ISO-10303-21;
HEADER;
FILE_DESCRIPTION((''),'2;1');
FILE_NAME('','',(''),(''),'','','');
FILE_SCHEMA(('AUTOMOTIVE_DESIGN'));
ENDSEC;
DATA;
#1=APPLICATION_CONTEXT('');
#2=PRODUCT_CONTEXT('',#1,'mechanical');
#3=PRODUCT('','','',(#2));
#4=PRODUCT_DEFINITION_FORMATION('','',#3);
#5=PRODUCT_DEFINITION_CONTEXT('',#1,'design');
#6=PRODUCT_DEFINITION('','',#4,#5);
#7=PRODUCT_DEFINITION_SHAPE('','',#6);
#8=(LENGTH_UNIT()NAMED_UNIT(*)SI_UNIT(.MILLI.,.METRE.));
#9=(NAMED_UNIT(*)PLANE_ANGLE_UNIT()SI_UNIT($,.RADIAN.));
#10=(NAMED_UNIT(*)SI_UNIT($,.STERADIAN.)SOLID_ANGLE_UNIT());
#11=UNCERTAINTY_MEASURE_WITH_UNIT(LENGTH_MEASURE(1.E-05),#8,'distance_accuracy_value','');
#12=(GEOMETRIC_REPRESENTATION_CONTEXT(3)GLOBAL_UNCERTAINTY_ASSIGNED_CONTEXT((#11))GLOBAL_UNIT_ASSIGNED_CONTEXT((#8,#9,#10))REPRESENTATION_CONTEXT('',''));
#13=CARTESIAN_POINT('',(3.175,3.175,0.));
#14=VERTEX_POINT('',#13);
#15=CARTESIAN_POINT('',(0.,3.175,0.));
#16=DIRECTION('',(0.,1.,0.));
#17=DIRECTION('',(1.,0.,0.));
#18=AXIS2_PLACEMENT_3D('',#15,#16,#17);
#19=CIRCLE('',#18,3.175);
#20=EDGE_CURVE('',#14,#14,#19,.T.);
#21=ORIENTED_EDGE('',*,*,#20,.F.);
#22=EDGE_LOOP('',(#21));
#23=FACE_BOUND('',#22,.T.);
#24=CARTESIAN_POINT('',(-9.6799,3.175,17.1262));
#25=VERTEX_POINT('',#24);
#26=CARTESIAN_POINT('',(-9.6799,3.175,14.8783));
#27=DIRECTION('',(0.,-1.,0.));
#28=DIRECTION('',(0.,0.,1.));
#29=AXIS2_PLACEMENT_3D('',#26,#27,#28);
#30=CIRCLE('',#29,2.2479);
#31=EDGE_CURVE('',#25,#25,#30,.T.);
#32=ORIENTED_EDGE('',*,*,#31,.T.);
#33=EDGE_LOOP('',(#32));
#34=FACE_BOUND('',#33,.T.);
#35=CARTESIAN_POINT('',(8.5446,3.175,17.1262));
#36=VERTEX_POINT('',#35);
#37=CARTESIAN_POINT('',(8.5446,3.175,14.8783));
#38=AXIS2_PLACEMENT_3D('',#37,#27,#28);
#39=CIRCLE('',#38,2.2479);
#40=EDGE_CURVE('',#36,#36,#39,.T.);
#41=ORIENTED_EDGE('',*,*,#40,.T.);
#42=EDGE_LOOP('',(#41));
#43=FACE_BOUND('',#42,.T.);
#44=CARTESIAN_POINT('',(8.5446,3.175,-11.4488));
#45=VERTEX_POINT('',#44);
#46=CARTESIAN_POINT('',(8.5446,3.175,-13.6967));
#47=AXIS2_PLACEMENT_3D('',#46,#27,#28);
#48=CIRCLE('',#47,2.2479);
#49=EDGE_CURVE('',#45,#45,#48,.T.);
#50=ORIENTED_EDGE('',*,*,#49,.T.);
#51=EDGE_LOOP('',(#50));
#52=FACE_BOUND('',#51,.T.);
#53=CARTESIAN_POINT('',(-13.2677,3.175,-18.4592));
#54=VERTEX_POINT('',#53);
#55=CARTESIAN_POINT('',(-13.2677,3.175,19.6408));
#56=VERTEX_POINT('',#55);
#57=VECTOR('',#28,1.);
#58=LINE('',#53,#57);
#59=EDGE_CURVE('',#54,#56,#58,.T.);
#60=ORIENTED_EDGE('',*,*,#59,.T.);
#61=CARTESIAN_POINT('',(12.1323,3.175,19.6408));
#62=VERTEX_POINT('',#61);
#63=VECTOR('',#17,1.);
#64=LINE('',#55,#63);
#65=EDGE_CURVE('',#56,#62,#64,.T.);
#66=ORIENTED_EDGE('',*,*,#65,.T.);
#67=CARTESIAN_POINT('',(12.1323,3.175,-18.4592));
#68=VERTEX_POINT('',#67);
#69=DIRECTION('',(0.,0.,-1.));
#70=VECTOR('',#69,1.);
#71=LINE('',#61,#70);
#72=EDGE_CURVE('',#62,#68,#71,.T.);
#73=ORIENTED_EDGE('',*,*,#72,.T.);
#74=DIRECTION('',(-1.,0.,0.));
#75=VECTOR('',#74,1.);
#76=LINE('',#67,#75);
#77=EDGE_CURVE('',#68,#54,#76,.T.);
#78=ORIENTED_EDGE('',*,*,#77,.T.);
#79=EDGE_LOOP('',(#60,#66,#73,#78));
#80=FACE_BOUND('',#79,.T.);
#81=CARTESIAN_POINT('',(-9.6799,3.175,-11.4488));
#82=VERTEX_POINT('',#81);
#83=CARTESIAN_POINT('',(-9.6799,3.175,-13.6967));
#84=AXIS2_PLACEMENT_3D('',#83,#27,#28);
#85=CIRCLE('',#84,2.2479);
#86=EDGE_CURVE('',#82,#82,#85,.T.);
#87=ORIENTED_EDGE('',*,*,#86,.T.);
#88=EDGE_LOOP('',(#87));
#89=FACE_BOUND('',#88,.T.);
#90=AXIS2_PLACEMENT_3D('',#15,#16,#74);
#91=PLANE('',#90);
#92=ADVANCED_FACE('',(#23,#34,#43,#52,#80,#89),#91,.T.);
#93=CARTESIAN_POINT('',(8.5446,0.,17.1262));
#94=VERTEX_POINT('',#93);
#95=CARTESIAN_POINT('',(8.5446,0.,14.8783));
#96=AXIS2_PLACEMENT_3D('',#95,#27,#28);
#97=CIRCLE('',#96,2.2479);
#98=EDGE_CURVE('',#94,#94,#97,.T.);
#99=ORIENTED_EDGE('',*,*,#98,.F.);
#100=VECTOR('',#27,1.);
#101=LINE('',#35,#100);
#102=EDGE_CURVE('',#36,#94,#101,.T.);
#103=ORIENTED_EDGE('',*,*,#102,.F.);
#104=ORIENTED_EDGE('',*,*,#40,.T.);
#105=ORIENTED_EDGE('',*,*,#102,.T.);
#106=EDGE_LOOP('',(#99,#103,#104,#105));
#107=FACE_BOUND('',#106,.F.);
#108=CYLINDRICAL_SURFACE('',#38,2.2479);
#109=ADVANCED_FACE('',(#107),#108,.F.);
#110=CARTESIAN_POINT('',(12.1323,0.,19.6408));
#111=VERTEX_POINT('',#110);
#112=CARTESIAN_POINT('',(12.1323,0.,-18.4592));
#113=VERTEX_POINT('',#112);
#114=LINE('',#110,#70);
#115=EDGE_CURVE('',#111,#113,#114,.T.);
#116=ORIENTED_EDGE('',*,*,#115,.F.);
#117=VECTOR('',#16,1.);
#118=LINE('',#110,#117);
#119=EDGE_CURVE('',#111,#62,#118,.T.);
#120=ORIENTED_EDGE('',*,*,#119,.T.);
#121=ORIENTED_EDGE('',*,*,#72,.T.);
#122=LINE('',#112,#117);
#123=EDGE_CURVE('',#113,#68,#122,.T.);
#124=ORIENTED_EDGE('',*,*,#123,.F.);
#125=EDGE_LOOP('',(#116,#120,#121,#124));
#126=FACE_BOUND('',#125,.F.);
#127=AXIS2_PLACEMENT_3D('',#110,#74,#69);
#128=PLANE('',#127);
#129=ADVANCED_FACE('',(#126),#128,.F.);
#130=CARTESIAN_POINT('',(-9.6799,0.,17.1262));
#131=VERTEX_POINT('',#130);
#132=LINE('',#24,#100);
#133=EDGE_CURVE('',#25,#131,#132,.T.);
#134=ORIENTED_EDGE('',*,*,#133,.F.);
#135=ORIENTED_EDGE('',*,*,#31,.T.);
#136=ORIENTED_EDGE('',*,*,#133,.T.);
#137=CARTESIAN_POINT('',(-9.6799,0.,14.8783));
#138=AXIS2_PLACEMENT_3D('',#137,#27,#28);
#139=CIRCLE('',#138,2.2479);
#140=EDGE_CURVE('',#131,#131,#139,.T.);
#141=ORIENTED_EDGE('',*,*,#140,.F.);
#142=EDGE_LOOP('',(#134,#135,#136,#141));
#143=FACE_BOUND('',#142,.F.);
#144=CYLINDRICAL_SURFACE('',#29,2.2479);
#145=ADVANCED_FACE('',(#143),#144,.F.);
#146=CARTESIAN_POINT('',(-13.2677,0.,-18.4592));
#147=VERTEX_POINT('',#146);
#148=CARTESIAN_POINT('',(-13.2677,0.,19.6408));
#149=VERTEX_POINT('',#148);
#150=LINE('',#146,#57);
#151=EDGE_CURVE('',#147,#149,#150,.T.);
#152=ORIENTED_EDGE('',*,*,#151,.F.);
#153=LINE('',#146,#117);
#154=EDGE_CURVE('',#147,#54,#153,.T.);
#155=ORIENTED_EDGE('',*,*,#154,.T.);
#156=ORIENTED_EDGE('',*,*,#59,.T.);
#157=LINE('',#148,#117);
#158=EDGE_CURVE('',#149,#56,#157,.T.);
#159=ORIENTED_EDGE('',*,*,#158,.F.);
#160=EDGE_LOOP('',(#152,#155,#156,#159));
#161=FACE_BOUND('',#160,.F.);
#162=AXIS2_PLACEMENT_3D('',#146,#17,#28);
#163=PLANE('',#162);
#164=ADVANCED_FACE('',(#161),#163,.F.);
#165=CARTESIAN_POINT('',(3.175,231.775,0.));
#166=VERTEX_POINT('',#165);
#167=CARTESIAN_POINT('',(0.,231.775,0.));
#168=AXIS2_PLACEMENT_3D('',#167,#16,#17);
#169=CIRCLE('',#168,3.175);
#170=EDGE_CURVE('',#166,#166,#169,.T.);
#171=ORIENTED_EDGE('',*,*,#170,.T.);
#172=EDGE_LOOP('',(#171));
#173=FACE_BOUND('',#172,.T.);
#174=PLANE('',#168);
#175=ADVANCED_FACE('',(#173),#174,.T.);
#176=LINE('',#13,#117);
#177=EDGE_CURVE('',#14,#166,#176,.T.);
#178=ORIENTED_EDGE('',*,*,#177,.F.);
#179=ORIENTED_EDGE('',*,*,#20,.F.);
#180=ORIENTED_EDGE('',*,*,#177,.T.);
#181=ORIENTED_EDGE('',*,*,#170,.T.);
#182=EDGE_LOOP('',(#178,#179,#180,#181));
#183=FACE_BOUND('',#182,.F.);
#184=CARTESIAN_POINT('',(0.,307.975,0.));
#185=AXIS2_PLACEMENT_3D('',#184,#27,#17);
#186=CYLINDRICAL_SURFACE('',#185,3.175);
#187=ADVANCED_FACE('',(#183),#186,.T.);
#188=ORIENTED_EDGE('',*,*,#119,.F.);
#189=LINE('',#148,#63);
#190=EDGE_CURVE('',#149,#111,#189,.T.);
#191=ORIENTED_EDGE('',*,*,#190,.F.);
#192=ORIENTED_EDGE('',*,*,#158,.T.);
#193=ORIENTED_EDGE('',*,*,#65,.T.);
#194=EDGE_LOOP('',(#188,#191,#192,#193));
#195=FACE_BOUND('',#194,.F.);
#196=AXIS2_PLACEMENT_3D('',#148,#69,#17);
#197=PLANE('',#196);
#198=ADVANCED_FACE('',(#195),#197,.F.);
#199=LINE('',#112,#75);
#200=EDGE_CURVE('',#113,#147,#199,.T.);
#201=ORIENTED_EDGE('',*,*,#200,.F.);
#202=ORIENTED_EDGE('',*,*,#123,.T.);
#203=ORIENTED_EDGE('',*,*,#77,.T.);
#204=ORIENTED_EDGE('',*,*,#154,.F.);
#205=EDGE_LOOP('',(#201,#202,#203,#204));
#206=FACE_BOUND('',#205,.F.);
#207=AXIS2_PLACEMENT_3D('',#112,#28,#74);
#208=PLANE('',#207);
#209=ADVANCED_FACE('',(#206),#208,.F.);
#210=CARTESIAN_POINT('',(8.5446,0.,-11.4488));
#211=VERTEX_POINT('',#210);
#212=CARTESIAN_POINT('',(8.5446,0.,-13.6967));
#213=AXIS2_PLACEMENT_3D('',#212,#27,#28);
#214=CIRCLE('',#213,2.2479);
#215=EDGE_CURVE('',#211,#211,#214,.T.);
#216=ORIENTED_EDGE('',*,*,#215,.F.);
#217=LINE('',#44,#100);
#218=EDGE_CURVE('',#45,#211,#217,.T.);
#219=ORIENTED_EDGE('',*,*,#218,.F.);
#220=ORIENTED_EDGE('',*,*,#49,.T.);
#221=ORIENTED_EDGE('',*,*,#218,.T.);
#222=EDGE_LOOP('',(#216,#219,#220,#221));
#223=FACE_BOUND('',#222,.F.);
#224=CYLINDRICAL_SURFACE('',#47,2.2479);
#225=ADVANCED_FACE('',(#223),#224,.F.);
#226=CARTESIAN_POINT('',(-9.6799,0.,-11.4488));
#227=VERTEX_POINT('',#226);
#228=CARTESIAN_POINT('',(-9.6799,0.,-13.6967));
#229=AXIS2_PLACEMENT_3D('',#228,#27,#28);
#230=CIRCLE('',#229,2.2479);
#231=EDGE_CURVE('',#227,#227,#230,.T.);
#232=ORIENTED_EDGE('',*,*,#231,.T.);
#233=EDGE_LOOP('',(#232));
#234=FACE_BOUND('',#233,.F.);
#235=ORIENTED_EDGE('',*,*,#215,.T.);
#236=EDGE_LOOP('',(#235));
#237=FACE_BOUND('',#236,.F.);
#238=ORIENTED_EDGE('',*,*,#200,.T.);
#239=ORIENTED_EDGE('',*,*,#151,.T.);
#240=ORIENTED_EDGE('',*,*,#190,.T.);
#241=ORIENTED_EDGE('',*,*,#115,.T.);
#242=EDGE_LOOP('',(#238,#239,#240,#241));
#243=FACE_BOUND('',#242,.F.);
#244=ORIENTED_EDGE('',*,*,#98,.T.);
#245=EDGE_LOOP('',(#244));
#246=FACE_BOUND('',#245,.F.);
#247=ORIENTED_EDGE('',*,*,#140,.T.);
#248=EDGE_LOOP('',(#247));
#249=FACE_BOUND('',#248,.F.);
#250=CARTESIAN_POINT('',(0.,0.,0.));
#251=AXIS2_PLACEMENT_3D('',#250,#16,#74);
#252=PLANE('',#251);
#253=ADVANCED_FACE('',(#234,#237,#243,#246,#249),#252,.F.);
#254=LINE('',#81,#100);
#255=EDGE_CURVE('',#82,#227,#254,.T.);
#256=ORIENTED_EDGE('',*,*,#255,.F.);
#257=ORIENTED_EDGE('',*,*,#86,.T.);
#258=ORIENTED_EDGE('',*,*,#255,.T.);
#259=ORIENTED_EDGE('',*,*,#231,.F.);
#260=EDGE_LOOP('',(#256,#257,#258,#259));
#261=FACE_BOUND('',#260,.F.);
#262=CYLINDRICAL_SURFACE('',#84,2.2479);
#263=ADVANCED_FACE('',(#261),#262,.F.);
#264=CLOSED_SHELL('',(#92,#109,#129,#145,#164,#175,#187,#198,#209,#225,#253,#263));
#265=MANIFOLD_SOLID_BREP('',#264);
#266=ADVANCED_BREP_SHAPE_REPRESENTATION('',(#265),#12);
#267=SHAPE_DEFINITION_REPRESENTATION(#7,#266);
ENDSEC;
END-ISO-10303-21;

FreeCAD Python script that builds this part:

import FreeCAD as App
import Part
import Sketcher

V = App.Vector
Q = App.Units.Quantity


def add_polygon(sketch, points):
    """Adds a closed chain of lines whose ends are joined by coincident constraints."""
    first, n = sketch.GeometryCount, len(points)
    for a, b in zip(points, points[1:] + points[:1]):
        sketch.addGeometry(Part.LineSegment(App.Vector(*a, 0), App.Vector(*b, 0)), False)
    for i in range(n):
        sketch.addConstraint(Sketcher.Constraint("Coincident", first + i, 2, first + (i + 1) % n, 1))

doc = App.newDocument("Part")
params = doc.addObject("Spreadsheet::Sheet", "Params")
for row, (alias, value) in enumerate([
    ("sketch1_width", "1 in"),
    ("sketch1_height", "1.5 in"),
    ("pad1_length", "0.125 in"),
    ("sketch2_diameter", "0.177 in"),
    ("hole_diameter", "0.177 in"),
    ("hole_depth", "0.125 in"),
    ("sketch3_diameter", "0.177 in"),
    ("hole2_diameter", "0.177 in"),
    ("hole2_depth", "0.125 in"),
    ("sketch4_diameter", "0.177 in"),
    ("hole3_diameter", "0.177 in"),
    ("hole3_depth", "0.125 in"),
    ("sketch5_diameter", "0.177 in"),
    ("hole4_diameter", "0.177 in"),
    ("hole4_depth", "0.125 in"),
    ("sketch6_diameter", "0.25 in"),
    ("pad2_length", "12 in"),
    ("sketch7_diameter", "0.25 in"),
    ("pad3_length", "2.5 in"),
    ("sketch8_diameter", "0.25 in"),
    ("pocket1_length", "5.5 in"),
], start=1):
    params.set(f"A{row}", alias)
    params.set(f"B{row}", "=" + value)
    params.setAlias(f"B{row}", alias)

body = doc.addObject("PartDesign::Body", "Body")

sketch1 = doc.addObject("Sketcher::SketchObject", "Sketch")
body.addObject(sketch1)
sketch1.AttachmentSupport = (doc.XZ_Plane, [""])
sketch1.MapMode = "FlatFace"
add_polygon(sketch1, [(-13, -18), (-13, 20), (12, 20), (12, -18)])
sketch1.addConstraint(Sketcher.Constraint("Vertical", 0))
sketch1.addConstraint(Sketcher.Constraint("Horizontal", 1))
sketch1.addConstraint(Sketcher.Constraint("Vertical", 2))
sketch1.addConstraint(Sketcher.Constraint("Horizontal", 3))
sketch1.addConstraint(Sketcher.Constraint("DistanceX", 1, 1, 1, 2, Q("1 in")))
sketch1.addConstraint(Sketcher.Constraint("DistanceY", 0, 1, 0, 2, Q("1.5 in")))
sketch1.addConstraint(Sketcher.Constraint("DistanceX", 0, 2, -1, 1, Q("13.2677 mm")))
sketch1.addConstraint(Sketcher.Constraint("DistanceY", -1, 1, 0, 2, Q("19.6408 mm")))
sketch1.setExpression("Constraints[8]", "Params.sketch1_width")
sketch1.setExpression("Constraints[9]", "Params.sketch1_height")
pad1 = doc.addObject("PartDesign::Pad", "Pad")
body.addObject(pad1)
pad1.Profile = sketch1
pad1.setExpression("Length", "Params.pad1_length")
pad1.Reversed = True

sketch2 = doc.addObject("Sketcher::SketchObject", "Sketch001")
body.addObject(sketch2)
sketch2.AttachmentSupport = (doc.XZ_Plane, [""])
sketch2.MapMode = "FlatFace"
sketch2.AttachmentOffset = App.Placement(V(0, 0, -0.125 * 25.4), App.Rotation())
sketch2.addGeometry(Part.Circle(V(-9.7, 14.9, 0), V(0, 0, 1), 2.2), False)
sketch2.addConstraint(Sketcher.Constraint("Diameter", 0, Q("0.177 in")))
sketch2.addConstraint(Sketcher.Constraint("DistanceX", 0, 3, -1, 1, Q("0.3811 in")))
sketch2.addConstraint(Sketcher.Constraint("DistanceY", -1, 1, 0, 3, Q("14.8783 mm")))
sketch2.setExpression("Constraints[0]", "Params.sketch2_diameter")
doc.recompute()
hole = doc.addObject("PartDesign::Hole", "Hole")
body.addObject(hole)
hole.Profile = sketch2
hole.ThreadType = "None"
hole.setExpression("Diameter", "Params.hole_diameter")
hole.DepthType = "Dimension"
hole.setExpression("Depth", "Params.hole_depth")
hole.DrillPoint = "Flat"
hole.Reversed = True

sketch3 = doc.addObject("Sketcher::SketchObject", "Sketch002")
body.addObject(sketch3)
sketch3.AttachmentSupport = (doc.XZ_Plane, [""])
sketch3.MapMode = "FlatFace"
sketch3.AttachmentOffset = App.Placement(V(0, 0, -0.125 * 25.4), App.Rotation())
sketch3.addGeometry(Part.Circle(V(8.5, 14.9, 0), V(0, 0, 1), 2.2), False)
sketch3.addConstraint(Sketcher.Constraint("Diameter", 0, Q("0.177 in")))
sketch3.addConstraint(Sketcher.Constraint("DistanceX", -1, 1, 0, 3, Q("0.3364 in")))
sketch3.addConstraint(Sketcher.Constraint("DistanceY", -1, 1, 0, 3, Q("14.8783 mm")))
sketch3.setExpression("Constraints[0]", "Params.sketch3_diameter")
doc.recompute()
hole2 = doc.addObject("PartDesign::Hole", "Hole001")
body.addObject(hole2)
hole2.Profile = sketch3
hole2.ThreadType = "None"
hole2.setExpression("Diameter", "Params.hole2_diameter")
hole2.DepthType = "Dimension"
hole2.setExpression("Depth", "Params.hole2_depth")
hole2.DrillPoint = "Flat"
hole2.Reversed = True

sketch4 = doc.addObject("Sketcher::SketchObject", "Sketch003")
body.addObject(sketch4)
sketch4.AttachmentSupport = (doc.XZ_Plane, [""])
sketch4.MapMode = "FlatFace"
sketch4.AttachmentOffset = App.Placement(V(0, 0, -0.125 * 25.4), App.Rotation())
sketch4.addGeometry(Part.Circle(V(-9.7, -13.7, 0), V(0, 0, 1), 2.2), False)
sketch4.addConstraint(Sketcher.Constraint("Diameter", 0, Q("0.177 in")))
sketch4.addConstraint(Sketcher.Constraint("DistanceX", 0, 3, -1, 1, Q("0.3811 in")))
sketch4.addConstraint(Sketcher.Constraint("DistanceY", 0, 3, -1, 1, Q("13.6967 mm")))
sketch4.setExpression("Constraints[0]", "Params.sketch4_diameter")
doc.recompute()
hole3 = doc.addObject("PartDesign::Hole", "Hole002")
body.addObject(hole3)
hole3.Profile = sketch4
hole3.ThreadType = "None"
hole3.setExpression("Diameter", "Params.hole3_diameter")
hole3.DepthType = "Dimension"
hole3.setExpression("Depth", "Params.hole3_depth")
hole3.DrillPoint = "Flat"
hole3.Reversed = True

sketch5 = doc.addObject("Sketcher::SketchObject", "Sketch004")
body.addObject(sketch5)
sketch5.AttachmentSupport = (doc.XZ_Plane, [""])
sketch5.MapMode = "FlatFace"
sketch5.AttachmentOffset = App.Placement(V(0, 0, -0.125 * 25.4), App.Rotation())
sketch5.addGeometry(Part.Circle(V(8.5, -13.7, 0), V(0, 0, 1), 2.2), False)
sketch5.addConstraint(Sketcher.Constraint("Diameter", 0, Q("0.177 in")))
sketch5.addConstraint(Sketcher.Constraint("DistanceX", -1, 1, 0, 3, Q("0.3364 in")))
sketch5.addConstraint(Sketcher.Constraint("DistanceY", 0, 3, -1, 1, Q("13.6967 mm")))
sketch5.setExpression("Constraints[0]", "Params.sketch5_diameter")
doc.recompute()
hole4 = doc.addObject("PartDesign::Hole", "Hole003")
body.addObject(hole4)
hole4.Profile = sketch5
hole4.ThreadType = "None"
hole4.setExpression("Diameter", "Params.hole4_diameter")
hole4.DepthType = "Dimension"
hole4.setExpression("Depth", "Params.hole4_depth")
hole4.DrillPoint = "Flat"
hole4.Reversed = True

sketch6 = doc.addObject("Sketcher::SketchObject", "Sketch005")
body.addObject(sketch6)
sketch6.AttachmentSupport = (doc.XZ_Plane, [""])
sketch6.MapMode = "FlatFace"
sketch6.AttachmentOffset = App.Placement(V(0, 0, -0.125 * 25.4), App.Rotation())
sketch6.addGeometry(Part.Circle(V(0, 0, 0), V(0, 0, 1), 3.2), False)
sketch6.addConstraint(Sketcher.Constraint("Coincident", 0, 3, -1, 1))
sketch6.addConstraint(Sketcher.Constraint("Diameter", 0, Q("0.25 in")))
sketch6.setExpression("Constraints[1]", "Params.sketch6_diameter")
pad2 = doc.addObject("PartDesign::Pad", "Pad001")
body.addObject(pad2)
pad2.Profile = sketch6
pad2.setExpression("Length", "Params.pad2_length")
pad2.Reversed = True

sketch7 = doc.addObject("Sketcher::SketchObject", "Sketch006")
body.addObject(sketch7)
sketch7.AttachmentSupport = (doc.XZ_Plane, [""])
sketch7.MapMode = "FlatFace"
sketch7.AttachmentOffset = App.Placement(V(0, 0, -12.125 * 25.4), App.Rotation())
sketch7.addGeometry(Part.Circle(V(0, 0, 0), V(0, 0, 1), 3.2), False)
sketch7.addConstraint(Sketcher.Constraint("Coincident", 0, 3, -1, 1))
sketch7.addConstraint(Sketcher.Constraint("Diameter", 0, Q("0.25 in")))
sketch7.setExpression("Constraints[1]", "Params.sketch7_diameter")
pad3 = doc.addObject("PartDesign::Pad", "Pad002")
body.addObject(pad3)
pad3.Profile = sketch7
pad3.setExpression("Length", "Params.pad3_length")
pad3.Reversed = True

sketch8 = doc.addObject("Sketcher::SketchObject", "Sketch007")
body.addObject(sketch8)
sketch8.AttachmentSupport = (doc.XZ_Plane, [""])
sketch8.MapMode = "FlatFace"
sketch8.AttachmentOffset = App.Placement(V(0, 0, -14.625 * 25.4), App.Rotation())
sketch8.addGeometry(Part.Circle(V(0, 0, 0), V(0, 0, 1), 3.2), False)
sketch8.addConstraint(Sketcher.Constraint("Coincident", 0, 3, -1, 1))
sketch8.addConstraint(Sketcher.Constraint("Diameter", 0, Q("0.25 in")))
sketch8.setExpression("Constraints[1]", "Params.sketch8_diameter")
pocket1 = doc.addObject("PartDesign::Pocket", "Pocket")
body.addObject(pocket1)
pocket1.Profile = sketch8
pocket1.setExpression("Length", "Params.pocket1_length")
pocket1.Reversed = True

doc.recompute()
